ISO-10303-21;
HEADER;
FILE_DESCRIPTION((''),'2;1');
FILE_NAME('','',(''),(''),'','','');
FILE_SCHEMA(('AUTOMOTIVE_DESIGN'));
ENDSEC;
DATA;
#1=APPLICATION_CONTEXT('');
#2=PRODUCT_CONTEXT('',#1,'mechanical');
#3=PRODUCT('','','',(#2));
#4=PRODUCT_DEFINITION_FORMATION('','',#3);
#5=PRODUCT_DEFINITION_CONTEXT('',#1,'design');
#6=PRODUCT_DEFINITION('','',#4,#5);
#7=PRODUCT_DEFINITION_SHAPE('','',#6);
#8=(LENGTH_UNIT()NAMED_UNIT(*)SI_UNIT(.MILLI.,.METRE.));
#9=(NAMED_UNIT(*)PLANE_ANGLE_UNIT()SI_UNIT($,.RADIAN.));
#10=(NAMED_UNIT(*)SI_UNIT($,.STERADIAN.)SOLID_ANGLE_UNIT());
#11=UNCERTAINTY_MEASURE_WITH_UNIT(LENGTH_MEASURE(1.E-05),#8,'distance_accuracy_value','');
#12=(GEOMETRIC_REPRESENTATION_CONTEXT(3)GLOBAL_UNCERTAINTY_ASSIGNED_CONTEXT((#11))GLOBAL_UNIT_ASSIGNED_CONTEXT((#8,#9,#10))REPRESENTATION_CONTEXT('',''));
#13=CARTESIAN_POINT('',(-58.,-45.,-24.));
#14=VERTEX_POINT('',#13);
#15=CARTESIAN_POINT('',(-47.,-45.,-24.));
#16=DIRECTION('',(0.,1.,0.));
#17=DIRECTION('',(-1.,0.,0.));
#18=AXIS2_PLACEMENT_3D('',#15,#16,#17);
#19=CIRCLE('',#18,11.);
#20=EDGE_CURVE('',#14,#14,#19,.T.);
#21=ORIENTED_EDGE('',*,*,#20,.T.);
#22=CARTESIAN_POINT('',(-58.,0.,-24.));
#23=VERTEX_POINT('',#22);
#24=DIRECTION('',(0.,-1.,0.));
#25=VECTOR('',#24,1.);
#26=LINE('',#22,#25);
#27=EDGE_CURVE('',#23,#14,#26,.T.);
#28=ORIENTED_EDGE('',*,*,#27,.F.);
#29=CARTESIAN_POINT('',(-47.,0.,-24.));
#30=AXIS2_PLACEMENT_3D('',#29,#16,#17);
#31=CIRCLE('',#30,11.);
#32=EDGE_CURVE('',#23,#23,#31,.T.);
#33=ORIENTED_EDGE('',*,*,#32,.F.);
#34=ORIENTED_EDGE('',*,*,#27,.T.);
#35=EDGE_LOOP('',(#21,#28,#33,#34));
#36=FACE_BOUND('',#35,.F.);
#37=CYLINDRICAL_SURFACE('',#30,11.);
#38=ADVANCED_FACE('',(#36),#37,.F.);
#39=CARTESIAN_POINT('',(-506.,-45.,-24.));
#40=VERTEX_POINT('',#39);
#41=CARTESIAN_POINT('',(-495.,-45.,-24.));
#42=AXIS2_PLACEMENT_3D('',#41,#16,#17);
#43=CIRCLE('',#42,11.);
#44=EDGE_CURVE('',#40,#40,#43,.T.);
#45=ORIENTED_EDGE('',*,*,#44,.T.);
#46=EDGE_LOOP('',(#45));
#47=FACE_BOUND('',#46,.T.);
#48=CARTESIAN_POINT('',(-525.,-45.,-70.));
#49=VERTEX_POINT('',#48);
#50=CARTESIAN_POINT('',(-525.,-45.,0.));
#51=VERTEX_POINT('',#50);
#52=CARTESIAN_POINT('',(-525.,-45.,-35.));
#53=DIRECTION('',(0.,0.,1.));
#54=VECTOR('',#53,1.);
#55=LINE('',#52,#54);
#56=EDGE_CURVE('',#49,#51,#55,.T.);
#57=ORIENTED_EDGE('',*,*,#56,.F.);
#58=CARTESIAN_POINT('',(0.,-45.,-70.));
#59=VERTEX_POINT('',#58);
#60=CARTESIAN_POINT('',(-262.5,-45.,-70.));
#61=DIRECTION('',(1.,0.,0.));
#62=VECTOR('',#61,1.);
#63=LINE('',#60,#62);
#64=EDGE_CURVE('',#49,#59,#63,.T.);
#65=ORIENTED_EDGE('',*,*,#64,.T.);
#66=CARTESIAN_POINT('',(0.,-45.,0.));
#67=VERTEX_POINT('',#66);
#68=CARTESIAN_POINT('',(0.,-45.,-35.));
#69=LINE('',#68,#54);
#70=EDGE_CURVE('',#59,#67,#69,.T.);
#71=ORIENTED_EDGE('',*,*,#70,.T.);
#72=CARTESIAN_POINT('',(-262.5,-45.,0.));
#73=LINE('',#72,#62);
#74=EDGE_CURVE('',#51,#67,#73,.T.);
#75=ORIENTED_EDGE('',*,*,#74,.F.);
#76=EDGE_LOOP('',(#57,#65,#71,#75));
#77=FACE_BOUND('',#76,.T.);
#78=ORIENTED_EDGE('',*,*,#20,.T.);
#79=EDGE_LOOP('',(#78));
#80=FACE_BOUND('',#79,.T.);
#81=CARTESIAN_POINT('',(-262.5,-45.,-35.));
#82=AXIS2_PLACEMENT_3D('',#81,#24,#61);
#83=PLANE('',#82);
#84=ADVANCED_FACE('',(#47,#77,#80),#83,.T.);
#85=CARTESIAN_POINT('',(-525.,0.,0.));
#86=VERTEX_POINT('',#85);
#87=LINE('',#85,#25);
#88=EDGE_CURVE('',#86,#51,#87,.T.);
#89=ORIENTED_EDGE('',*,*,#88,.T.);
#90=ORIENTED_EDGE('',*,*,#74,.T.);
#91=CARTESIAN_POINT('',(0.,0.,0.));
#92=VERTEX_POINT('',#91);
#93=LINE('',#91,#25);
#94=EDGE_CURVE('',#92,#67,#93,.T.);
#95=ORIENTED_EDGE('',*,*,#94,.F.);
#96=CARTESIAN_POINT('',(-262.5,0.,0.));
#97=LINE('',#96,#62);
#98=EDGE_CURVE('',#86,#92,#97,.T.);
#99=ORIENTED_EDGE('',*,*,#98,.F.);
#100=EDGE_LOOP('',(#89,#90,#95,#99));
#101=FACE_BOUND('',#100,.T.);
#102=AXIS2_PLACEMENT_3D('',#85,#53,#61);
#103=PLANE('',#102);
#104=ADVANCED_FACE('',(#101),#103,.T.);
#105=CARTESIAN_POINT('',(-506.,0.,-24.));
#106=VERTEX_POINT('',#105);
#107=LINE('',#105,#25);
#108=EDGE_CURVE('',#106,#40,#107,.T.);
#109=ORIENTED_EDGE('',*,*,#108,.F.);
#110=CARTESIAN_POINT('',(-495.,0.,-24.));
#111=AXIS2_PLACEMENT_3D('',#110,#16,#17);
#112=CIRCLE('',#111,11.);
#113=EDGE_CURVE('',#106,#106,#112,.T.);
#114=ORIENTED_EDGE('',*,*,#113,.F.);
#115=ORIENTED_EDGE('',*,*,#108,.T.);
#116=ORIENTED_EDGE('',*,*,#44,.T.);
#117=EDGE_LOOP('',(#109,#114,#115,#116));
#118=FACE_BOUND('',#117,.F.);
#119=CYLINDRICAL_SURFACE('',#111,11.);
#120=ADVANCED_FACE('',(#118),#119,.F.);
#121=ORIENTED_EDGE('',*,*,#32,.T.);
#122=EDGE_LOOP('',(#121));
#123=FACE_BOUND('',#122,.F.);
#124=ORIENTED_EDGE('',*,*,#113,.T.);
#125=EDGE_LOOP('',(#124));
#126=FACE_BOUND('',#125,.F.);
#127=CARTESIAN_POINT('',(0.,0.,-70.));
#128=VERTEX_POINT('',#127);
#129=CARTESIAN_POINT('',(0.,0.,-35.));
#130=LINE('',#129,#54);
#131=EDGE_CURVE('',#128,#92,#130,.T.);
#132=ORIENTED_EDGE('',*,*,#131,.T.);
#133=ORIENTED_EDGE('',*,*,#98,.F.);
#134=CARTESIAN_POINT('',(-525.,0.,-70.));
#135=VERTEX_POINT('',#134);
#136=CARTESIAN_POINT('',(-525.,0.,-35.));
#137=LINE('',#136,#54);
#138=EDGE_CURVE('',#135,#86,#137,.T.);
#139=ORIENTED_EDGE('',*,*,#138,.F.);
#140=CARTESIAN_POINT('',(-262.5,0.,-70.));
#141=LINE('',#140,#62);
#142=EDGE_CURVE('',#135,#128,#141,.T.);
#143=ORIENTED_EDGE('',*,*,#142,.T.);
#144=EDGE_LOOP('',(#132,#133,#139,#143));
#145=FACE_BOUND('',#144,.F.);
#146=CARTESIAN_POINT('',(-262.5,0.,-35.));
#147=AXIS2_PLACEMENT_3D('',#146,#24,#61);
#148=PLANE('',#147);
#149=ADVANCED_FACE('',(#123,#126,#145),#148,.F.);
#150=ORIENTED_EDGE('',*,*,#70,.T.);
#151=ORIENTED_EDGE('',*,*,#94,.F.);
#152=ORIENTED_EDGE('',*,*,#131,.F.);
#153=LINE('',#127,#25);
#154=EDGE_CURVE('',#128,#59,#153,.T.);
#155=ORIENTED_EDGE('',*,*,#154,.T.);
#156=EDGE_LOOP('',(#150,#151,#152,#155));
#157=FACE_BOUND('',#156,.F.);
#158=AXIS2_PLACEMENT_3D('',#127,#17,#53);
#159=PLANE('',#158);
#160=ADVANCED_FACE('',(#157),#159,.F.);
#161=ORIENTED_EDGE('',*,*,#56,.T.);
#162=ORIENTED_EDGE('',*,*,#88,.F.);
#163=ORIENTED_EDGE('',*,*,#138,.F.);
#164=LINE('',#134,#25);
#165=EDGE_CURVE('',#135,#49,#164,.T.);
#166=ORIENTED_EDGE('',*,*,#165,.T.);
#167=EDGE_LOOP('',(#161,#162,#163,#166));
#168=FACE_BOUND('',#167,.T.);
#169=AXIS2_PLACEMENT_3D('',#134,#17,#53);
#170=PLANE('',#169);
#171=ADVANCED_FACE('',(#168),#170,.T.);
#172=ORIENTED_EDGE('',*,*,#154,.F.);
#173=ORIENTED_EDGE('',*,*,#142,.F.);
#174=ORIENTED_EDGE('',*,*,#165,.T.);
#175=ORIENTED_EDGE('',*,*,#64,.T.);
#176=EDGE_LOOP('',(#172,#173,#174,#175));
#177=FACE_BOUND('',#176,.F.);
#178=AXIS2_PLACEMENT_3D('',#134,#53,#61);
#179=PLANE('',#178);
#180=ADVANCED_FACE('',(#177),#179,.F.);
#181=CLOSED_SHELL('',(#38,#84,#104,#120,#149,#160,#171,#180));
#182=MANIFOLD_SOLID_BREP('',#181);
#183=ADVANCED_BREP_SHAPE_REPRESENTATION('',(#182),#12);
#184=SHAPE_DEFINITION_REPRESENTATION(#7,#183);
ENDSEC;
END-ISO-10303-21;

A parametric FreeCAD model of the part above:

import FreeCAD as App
import Part
import Sketcher
from FreeCAD import Vector


def add_polygon(sketch, points):
    """Adds a closed chain of lines whose ends are joined by coincident constraints."""
    first, n = sketch.GeometryCount, len(points)
    for a, b in zip(points, points[1:] + points[:1]):
        sketch.addGeometry(Part.LineSegment(App.Vector(*a, 0), App.Vector(*b, 0)), False)
    for i in range(n):
        sketch.addConstraint(Sketcher.Constraint("Coincident", first + i, 2, first + (i + 1) % n, 1))

doc = App.newDocument("Part")
body = doc.addObject("PartDesign::Body", "Body")

sketch1 = doc.addObject("Sketcher::SketchObject", "Sketch")
body.addObject(sketch1)
sketch1.AttachmentSupport = (doc.XZ_Plane, [""])
sketch1.MapMode = "FlatFace"
add_polygon(sketch1, [(-525, 0), (-525, -70), (0, -70), (0, 0)])
sketch1.addConstraint(Sketcher.Constraint("Vertical", 0))
sketch1.addConstraint(Sketcher.Constraint("Horizontal", 1))
sketch1.addConstraint(Sketcher.Constraint("Vertical", 2))
sketch1.addConstraint(Sketcher.Constraint("Horizontal", 3))
sketch1.addConstraint(Sketcher.Constraint("Coincident", 2, 2, -1, 1))
sketch1.addConstraint(Sketcher.Constraint("DistanceX", 1, 1, 1, 2, 525.0))
sketch1.addConstraint(Sketcher.Constraint("DistanceY", 0, 2, 0, 1, 70.0))
pad1 = doc.addObject("PartDesign::Pad", "Pad")
body.addObject(pad1)
pad1.Profile = sketch1
pad1.Length = 45

sketch2 = doc.addObject("Sketcher::SketchObject", "Sketch001")
body.addObject(sketch2)
sketch2.AttachmentSupport = (doc.XZ_Plane, [""])
sketch2.MapMode = "FlatFace"
sketch2.addGeometry(Part.Circle(Vector(-495, -24, 0), Vector(0, 0, 1), 11), False)
sketch2.addConstraint(Sketcher.Constraint("Diameter", 0, 22.0))
sketch2.addConstraint(Sketcher.Constraint("DistanceX", 0, 3, -1, 1, 495.0))
sketch2.addConstraint(Sketcher.Constraint("DistanceY", 0, 3, -1, 1, 24.0))
pocket1 = doc.addObject("PartDesign::Pocket", "Pocket")
body.addObject(pocket1)
pocket1.Profile = sketch2
pocket1.Type = "ThroughAll"
pocket1.Reversed = True

sketch3 = doc.addObject("Sketcher::SketchObject", "Sketch002")
body.addObject(sketch3)
sketch3.AttachmentSupport = (doc.XZ_Plane, [""])
sketch3.MapMode = "FlatFace"
sketch3.addGeometry(Part.Circle(Vector(-47, -24, 0), Vector(0, 0, 1), 11), False)
sketch3.addConstraint(Sketcher.Constraint("Diameter", 0, 22.0))
sketch3.addConstraint(Sketcher.Constraint("DistanceX", 0, 3, -1, 1, 47.0))
sketch3.addConstraint(Sketcher.Constraint("DistanceY", 0, 3, -1, 1, 24.0))
pocket2 = doc.addObject("PartDesign::Pocket", "Pocket001")
body.addObject(pocket2)
pocket2.Profile = sketch3
pocket2.Type = "ThroughAll"
pocket2.Reversed = True

doc.recompute()
